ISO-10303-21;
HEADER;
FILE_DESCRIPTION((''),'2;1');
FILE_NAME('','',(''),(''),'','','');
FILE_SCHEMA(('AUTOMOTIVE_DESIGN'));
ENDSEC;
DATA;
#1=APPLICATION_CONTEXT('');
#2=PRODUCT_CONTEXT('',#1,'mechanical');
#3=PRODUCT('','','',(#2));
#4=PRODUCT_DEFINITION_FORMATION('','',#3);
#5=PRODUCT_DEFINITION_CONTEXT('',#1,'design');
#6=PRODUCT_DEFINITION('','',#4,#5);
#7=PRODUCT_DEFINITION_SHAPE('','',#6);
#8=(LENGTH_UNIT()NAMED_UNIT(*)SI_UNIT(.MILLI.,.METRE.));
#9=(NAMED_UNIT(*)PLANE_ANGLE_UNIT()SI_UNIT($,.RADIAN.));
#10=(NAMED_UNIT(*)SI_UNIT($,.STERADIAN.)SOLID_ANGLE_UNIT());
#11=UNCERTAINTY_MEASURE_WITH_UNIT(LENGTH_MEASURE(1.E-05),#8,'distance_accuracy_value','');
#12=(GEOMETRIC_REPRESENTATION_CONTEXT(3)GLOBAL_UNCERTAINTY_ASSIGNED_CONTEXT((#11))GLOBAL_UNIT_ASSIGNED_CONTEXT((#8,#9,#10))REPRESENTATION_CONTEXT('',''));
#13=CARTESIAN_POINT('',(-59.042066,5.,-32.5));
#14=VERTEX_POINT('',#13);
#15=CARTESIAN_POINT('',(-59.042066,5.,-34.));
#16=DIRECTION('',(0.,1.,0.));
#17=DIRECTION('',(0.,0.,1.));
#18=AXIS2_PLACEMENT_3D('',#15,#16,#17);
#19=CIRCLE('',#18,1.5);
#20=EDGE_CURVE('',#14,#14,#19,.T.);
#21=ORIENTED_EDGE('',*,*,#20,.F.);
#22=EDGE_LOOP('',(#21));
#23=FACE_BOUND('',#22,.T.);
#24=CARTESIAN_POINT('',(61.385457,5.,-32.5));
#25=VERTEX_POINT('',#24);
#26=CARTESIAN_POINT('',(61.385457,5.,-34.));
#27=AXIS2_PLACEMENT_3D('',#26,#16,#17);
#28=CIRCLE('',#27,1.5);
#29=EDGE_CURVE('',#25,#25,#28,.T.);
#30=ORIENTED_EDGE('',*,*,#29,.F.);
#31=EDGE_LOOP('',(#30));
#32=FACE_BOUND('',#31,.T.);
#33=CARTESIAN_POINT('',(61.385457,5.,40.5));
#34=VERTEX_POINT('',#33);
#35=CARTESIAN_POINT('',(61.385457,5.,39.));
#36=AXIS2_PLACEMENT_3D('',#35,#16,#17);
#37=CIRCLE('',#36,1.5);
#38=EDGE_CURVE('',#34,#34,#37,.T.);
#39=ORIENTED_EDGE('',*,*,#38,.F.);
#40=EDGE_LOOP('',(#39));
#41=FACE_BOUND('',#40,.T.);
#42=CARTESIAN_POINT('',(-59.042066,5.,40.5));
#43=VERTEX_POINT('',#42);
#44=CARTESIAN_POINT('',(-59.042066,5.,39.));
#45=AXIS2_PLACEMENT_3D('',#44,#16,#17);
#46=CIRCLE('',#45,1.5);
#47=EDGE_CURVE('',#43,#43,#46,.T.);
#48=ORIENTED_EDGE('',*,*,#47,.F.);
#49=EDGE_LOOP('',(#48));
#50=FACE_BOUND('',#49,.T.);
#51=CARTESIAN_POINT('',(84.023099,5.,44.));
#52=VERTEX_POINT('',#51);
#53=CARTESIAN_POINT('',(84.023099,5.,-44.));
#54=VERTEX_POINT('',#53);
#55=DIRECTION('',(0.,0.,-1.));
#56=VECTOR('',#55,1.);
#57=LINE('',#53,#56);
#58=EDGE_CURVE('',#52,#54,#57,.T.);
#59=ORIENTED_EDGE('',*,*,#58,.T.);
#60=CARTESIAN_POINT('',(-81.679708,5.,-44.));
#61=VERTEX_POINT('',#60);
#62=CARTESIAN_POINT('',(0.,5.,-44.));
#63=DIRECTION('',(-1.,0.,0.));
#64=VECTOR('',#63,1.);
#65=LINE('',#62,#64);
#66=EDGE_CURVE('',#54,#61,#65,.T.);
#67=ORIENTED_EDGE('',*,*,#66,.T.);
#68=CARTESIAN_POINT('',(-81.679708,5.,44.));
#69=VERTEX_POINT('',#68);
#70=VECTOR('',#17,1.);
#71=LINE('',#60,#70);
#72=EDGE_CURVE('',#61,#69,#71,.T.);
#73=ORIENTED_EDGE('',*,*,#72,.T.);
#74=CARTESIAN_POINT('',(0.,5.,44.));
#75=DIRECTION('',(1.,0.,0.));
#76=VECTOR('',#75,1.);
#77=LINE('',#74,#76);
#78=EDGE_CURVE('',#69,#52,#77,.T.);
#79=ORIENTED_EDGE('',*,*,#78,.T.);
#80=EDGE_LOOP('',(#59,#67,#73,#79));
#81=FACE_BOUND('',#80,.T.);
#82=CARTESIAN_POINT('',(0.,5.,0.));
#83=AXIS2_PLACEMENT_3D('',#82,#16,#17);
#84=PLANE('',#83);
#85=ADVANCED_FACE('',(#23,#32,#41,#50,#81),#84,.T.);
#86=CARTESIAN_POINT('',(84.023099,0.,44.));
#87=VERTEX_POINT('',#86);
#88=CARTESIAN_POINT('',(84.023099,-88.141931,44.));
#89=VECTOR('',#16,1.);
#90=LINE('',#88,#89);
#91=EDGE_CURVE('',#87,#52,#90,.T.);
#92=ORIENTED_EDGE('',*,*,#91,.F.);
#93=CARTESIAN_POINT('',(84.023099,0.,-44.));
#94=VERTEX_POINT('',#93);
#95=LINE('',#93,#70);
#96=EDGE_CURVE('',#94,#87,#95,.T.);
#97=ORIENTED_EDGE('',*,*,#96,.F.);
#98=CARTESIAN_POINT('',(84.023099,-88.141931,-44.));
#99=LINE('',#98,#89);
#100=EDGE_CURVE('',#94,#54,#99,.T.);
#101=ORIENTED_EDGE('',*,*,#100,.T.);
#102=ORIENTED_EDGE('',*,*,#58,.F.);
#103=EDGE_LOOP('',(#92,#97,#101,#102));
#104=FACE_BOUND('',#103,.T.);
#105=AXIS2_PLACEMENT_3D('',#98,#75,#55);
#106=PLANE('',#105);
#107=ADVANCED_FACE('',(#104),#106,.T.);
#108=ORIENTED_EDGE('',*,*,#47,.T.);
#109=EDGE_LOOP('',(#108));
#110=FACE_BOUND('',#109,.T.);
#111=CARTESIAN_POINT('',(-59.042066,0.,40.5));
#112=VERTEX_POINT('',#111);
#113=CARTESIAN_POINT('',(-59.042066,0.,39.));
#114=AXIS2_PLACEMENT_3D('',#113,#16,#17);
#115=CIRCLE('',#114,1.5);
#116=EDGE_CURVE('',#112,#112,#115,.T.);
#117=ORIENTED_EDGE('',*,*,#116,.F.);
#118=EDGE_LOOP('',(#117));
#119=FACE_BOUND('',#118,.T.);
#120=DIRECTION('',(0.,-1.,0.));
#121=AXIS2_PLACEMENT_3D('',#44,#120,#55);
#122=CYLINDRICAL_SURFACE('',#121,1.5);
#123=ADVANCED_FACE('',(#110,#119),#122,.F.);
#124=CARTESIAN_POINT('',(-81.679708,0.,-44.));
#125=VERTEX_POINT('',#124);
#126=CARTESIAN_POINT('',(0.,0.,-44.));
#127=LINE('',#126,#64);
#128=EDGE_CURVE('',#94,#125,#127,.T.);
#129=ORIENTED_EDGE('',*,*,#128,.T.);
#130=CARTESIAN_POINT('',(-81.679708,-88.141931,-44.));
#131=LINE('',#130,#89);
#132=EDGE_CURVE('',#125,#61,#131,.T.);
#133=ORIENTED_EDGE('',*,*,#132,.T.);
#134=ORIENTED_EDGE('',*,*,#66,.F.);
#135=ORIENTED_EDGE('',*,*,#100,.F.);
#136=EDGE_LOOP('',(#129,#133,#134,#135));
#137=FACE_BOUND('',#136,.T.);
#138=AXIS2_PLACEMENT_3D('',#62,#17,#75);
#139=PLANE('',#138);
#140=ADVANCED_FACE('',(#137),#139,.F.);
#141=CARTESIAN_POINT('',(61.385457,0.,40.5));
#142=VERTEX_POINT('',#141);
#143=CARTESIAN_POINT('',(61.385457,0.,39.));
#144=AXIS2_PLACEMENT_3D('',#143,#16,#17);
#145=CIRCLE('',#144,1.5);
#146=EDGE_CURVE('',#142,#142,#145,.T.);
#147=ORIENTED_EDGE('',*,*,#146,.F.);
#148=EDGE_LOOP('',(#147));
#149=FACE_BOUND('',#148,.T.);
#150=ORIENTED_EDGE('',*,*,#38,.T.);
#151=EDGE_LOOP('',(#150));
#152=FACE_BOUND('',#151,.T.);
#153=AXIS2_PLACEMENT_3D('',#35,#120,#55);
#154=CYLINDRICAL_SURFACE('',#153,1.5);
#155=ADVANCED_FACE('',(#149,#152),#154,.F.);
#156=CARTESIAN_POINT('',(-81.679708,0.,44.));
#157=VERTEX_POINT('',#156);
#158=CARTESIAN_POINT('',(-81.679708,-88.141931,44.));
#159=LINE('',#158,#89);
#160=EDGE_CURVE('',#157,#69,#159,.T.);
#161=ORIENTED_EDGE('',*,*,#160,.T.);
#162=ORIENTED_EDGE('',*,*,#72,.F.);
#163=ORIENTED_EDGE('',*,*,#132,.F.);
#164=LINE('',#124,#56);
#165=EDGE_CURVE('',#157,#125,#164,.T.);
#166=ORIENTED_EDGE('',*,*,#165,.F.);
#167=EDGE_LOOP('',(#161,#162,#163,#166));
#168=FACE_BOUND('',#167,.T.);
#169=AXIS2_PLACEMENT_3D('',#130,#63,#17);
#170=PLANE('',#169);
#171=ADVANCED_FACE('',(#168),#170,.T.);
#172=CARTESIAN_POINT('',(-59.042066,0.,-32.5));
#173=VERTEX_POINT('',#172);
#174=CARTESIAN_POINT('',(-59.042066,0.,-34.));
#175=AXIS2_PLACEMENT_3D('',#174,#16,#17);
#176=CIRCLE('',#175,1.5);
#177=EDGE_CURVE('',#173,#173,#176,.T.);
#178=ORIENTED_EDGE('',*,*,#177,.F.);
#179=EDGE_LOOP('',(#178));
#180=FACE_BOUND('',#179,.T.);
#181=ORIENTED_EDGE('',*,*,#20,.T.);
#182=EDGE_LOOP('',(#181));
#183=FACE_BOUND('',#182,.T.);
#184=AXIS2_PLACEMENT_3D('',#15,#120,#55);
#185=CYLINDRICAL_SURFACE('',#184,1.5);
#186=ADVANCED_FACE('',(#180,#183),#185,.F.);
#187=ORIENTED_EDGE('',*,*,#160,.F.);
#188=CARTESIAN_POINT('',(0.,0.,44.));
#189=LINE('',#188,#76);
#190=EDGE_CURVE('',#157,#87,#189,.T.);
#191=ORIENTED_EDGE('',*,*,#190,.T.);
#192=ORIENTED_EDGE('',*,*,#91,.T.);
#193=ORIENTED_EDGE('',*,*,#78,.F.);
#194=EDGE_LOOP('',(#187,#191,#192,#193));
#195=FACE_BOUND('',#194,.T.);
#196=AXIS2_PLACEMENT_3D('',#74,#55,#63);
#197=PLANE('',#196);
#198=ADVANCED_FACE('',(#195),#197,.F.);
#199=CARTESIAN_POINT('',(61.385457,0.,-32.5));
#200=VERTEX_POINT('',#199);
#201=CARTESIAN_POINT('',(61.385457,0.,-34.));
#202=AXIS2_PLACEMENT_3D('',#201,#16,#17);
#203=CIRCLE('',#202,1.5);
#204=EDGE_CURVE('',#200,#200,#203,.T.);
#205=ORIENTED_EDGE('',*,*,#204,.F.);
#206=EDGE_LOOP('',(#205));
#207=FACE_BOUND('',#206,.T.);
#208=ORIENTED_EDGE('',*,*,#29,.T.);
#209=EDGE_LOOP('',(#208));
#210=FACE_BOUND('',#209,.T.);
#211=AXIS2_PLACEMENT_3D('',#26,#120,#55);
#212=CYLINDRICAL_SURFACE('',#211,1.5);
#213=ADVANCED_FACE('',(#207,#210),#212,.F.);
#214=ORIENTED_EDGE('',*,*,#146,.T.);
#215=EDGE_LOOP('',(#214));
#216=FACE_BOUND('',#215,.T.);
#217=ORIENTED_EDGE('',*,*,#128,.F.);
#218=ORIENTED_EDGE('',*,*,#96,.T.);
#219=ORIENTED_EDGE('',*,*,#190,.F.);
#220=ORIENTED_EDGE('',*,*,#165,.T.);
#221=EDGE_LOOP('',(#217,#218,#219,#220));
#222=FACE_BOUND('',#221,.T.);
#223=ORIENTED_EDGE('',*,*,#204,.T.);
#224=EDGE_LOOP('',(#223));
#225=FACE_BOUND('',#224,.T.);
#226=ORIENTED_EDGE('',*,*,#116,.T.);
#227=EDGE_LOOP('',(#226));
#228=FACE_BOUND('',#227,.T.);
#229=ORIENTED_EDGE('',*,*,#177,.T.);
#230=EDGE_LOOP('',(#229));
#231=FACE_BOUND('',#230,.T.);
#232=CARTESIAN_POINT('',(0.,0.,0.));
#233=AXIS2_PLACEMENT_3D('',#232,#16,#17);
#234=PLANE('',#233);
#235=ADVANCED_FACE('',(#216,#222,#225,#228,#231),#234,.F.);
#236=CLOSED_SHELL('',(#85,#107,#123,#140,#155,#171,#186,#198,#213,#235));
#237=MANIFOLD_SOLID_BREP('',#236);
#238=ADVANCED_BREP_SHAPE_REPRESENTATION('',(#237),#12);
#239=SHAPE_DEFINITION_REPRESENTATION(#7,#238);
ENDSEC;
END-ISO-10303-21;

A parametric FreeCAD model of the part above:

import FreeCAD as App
import Part
import Sketcher
Q = App.Units.Quantity

doc = App.newDocument("Part")
body = doc.addObject("PartDesign::Body", "Body")

sketch1 = body.newObject("Sketcher::SketchObject", "Sketch")
sketch1.AttachmentSupport = (doc.getObject("XZ_Plane"), [""])
sketch1.MapMode = "FlatFace"
sketch1.addGeometry([
    Part.LineSegment(App.Vector(-76.679708, -44, 0), App.Vector(-76.679708, 44, 0)),
    Part.LineSegment(App.Vector(-76.679708, 44, 0), App.Vector(79.023099, 44, 0)),
    Part.LineSegment(App.Vector(79.023099, 44, 0), App.Vector(79.023099, -44, 0)),
    Part.LineSegment(App.Vector(79.023099, -44, 0), App.Vector(-76.679708, -44, 0)),
    Part.Circle(App.Vector(-59.042066, 39, 0), App.Vector(0, 0, 1), 1.5),
    Part.Circle(App.Vector(61.385457, 39, 0), App.Vector(0, 0, 1), 1.5),
    Part.Circle(App.Vector(-59.042066, -34, 0), App.Vector(0, 0, 1), 1.5),
    Part.Circle(App.Vector(61.385457, -34, 0), App.Vector(0, 0, 1), 1.5),
], False)
sketch1.addConstraint([
    Sketcher.Constraint("Coincident", 0, 2, 1, 1),
    Sketcher.Constraint("Coincident", 1, 2, 2, 1),
    Sketcher.Constraint("Coincident", 2, 2, 3, 1),
    Sketcher.Constraint("Coincident", 3, 2, 0, 1),
    Sketcher.Constraint("Vertical", 0),
    Sketcher.Constraint("Horizontal", 1),
    Sketcher.Constraint("Vertical", 2),
    Sketcher.Constraint("Horizontal", 3),
    Sketcher.Constraint("Equal", 4, 5),
    Sketcher.Constraint("Equal", 5, 6),
    Sketcher.Constraint("Equal", 6, 7),
    Sketcher.Constraint("Horizontal", 4, 3, 5, 3),
    Sketcher.Constraint("Horizontal", 6, 3, 7, 3),
    Sketcher.Constraint("Vertical", 4, 3, 6, 3),
    Sketcher.Constraint("Vertical", 5, 3, 7, 3),
    Sketcher.Constraint("Diameter", 4, Q("3 mm")),
    Sketcher.Constraint("DistanceY", 0, 1, 0, 2, Q("88 mm")),
    Sketcher.Constraint("DistanceY", -1, 1, 4, 3, Q("39 mm")),
    Sketcher.Constraint("DistanceY", 6, 3, -1, 1, Q("34 mm")),
    Sketcher.Constraint("DistanceY", -1, 1, 0, 2, Q("44 mm")),
    Sketcher.Constraint("DistanceX", -1, 1, 1, 2, Q("79.023099 mm")),
    Sketcher.Constraint("DistanceX", 1, 1, 1, 2, Q("155.702807 mm")),
    Sketcher.Constraint("DistanceX", 4, 3, -1, 1, Q("59.042066 mm")),
    Sketcher.Constraint("DistanceX", -1, 1, 5, 3, Q("61.385457 mm")),
])
pad1 = body.newObject("PartDesign::Pad", "Pad")
pad1.Profile = sketch1
pad1.Length = 5
pad1.Reversed = True

sketch2 = body.newObject("Sketcher::SketchObject", "Sketch001")
sketch2.AttachmentSupport = (doc.getObject("XZ_Plane"), [""])
sketch2.MapMode = "FlatFace"
sketch2.AttachmentOffset = App.Placement(App.Vector(0, 0, -5), App.Rotation())
sketch2.addGeometry([
    Part.LineSegment(App.Vector(79.023099, -44, 0), App.Vector(79.023099, 44, 0)),
    Part.LineSegment(App.Vector(79.023099, 44, 0), App.Vector(84.023099, 44, 0)),
    Part.LineSegment(App.Vector(84.023099, 44, 0), App.Vector(84.023099, -44, 0)),
    Part.LineSegment(App.Vector(84.023099, -44, 0), App.Vector(79.023099, -44, 0)),
    Part.LineSegment(App.Vector(-81.679708, -44, 0), App.Vector(-81.679708, 44, 0)),
    Part.LineSegment(App.Vector(-81.679708, 44, 0), App.Vector(-76.679708, 44, 0)),
    Part.LineSegment(App.Vector(-76.679708, 44, 0), App.Vector(-76.679708, -44, 0)),
    Part.LineSegment(App.Vector(-76.679708, -44, 0), App.Vector(-81.679708, -44, 0)),
], False)
sketch2.addConstraint([
    Sketcher.Constraint("Coincident", 0, 2, 1, 1),
    Sketcher.Constraint("Coincident", 1, 2, 2, 1),
    Sketcher.Constraint("Coincident", 2, 2, 3, 1),
    Sketcher.Constraint("Coincident", 3, 2, 0, 1),
    Sketcher.Constraint("Coincident", 4, 2, 5, 1),
    Sketcher.Constraint("Coincident", 5, 2, 6, 1),
    Sketcher.Constraint("Coincident", 6, 2, 7, 1),
    Sketcher.Constraint("Coincident", 7, 2, 4, 1),
    Sketcher.Constraint("Vertical", 0),
    Sketcher.Constraint("Horizontal", 1),
    Sketcher.Constraint("Vertical", 2),
    Sketcher.Constraint("Horizontal", 3),
    Sketcher.Constraint("Vertical", 4),
    Sketcher.Constraint("Horizontal", 5),
    Sketcher.Constraint("Vertical", 6),
    Sketcher.Constraint("Horizontal", 7),
    Sketcher.Constraint("Horizontal", 1, 2, 4, 2),
    Sketcher.Constraint("Horizontal", 3, 2, 6, 2),
    Sketcher.Constraint("Equal", 3, 5),
    Sketcher.Constraint("DistanceX", 1, 1, 1, 2, Q("5 mm")),
    Sketcher.Constraint("DistanceY", 0, 1, 0, 2, Q("88 mm")),
    Sketcher.Constraint("DistanceY", -1, 1, 0, 2, Q("44 mm")),
    Sketcher.Constraint("DistanceX", -1, 1, 0, 2, Q("79.023099 mm")),
    Sketcher.Constraint("DistanceX", 4, 2, -1, 1, Q("81.679708 mm")),
])
pad2 = body.newObject("PartDesign::Pad", "Pad001")
pad2.Profile = sketch2
pad2.Length = 5

doc.recompute()
